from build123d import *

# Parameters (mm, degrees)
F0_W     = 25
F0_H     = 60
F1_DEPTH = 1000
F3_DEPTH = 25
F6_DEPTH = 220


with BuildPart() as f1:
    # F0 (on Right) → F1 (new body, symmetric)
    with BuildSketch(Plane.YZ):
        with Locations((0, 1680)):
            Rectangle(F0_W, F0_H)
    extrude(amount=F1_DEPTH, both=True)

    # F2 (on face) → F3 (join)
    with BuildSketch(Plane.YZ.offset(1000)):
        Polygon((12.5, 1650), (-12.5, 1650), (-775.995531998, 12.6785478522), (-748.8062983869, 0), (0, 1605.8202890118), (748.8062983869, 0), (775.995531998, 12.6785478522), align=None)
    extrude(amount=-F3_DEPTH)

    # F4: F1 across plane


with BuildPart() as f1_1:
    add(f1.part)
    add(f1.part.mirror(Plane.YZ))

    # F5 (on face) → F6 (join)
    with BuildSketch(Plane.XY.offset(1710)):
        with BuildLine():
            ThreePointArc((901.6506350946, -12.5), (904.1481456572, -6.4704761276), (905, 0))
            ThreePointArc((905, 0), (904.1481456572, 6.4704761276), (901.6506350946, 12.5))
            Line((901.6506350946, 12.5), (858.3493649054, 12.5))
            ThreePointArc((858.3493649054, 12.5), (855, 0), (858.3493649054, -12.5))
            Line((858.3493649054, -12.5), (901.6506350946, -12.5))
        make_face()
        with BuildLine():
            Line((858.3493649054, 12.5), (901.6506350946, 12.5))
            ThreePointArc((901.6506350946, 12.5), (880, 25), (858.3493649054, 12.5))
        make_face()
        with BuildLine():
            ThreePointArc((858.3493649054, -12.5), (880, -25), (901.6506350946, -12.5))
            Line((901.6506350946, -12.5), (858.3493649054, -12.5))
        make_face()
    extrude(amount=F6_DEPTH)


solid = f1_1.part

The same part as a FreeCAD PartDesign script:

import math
import FreeCAD as App
import Part
import Sketcher

V = App.Vector
Q = App.Units.Quantity

doc = App.newDocument("Part")
body = doc.addObject("PartDesign::Body", "Body")

# Sketch on YZ plane
sketch1 = body.newObject("Sketcher::SketchObject", "Sketch")
sketch1.AttachmentSupport = (doc.getObject("YZ_Plane"), [""])
sketch1.MapMode = "FlatFace"
sketch1.addGeometry([
    Part.LineSegment(V(-12, 1710, 0), V(-12, 1650, 0)),
    Part.LineSegment(V(-12, 1650, 0), V(12, 1650, 0)),
    Part.LineSegment(V(12, 1650, 0), V(12, 1710, 0)),
    Part.LineSegment(V(12, 1710, 0), V(-12, 1710, 0)),
], False)
sketch1.addConstraint([
    Sketcher.Constraint("Coincident", 0, 2, 1, 1),
    Sketcher.Constraint("Coincident", 1, 2, 2, 1),
    Sketcher.Constraint("Coincident", 2, 2, 3, 1),
    Sketcher.Constraint("Coincident", 3, 2, 0, 1),
    Sketcher.Constraint("Vertical", 0),
    Sketcher.Constraint("Horizontal", 1),
    Sketcher.Constraint("Vertical", 2),
    Sketcher.Constraint("Horizontal", 3),
    Sketcher.Constraint("DistanceX", 1, 1, 1, 2, Q("25 mm")),
    Sketcher.Constraint("DistanceY", 0, 2, 0, 1, Q("60 mm")),
    Sketcher.Constraint("DistanceY", -1, 1, 0, 2, Q("1650 mm")),
    Sketcher.Constraint("DistanceX", 0, 2, -1, 1, Q("12.5 mm")),
])
pad1 = body.newObject("PartDesign::Pad", "Pad")
pad1.Profile = sketch1
pad1.Length = 2000
pad1.Midplane = True

# Sketch on YZ plane
sketch2 = body.newObject("Sketcher::SketchObject", "Sketch001")
sketch2.AttachmentSupport = (doc.getObject("YZ_Plane"), [""])
sketch2.MapMode = "FlatFace"
sketch2.AttachmentOffset = App.Placement(V(0, 0, 1000), App.Rotation())
sketch2.addGeometry([
    Part.LineSegment(V(12, 1650, 0), V(-12, 1650, 0)),  # 0
    Part.LineSegment(V(-12, 1650, 0), V(-776, 13, 0)),  # 1
    Part.LineSegment(V(-776, 13, 0), V(-749, 0, 0)),  # 2
    Part.LineSegment(V(-749, 0, 0), V(0, 1606, 0)),  # 3
    Part.LineSegment(V(0, 1606, 0), V(749, 0, 0)),  # 4
    Part.LineSegment(V(749, 0, 0), V(776, 13, 0)),  # 5
    Part.LineSegment(V(776, 13, 0), V(12, 1650, 0)),  # 6
], False)
sketch2.addConstraint([
    Sketcher.Constraint("Coincident", 0, 2, 1, 1),
    Sketcher.Constraint("Coincident", 1, 2, 2, 1),
    Sketcher.Constraint("Coincident", 2, 2, 3, 1),
    Sketcher.Constraint("Coincident", 3, 2, 4, 1),
    Sketcher.Constraint("Coincident", 4, 2, 5, 1),
    Sketcher.Constraint("Coincident", 5, 2, 6, 1),
    Sketcher.Constraint("Coincident", 6, 2, 0, 1),
    Sketcher.Constraint("Horizontal", 0),
    Sketcher.Constraint("Symmetric", 2, 2, 4, 2, -1, 1),
    Sketcher.Constraint("Symmetric", 1, 2, 5, 2, -2),
    Sketcher.Constraint("PointOnObject", 2, 2, -1),
    Sketcher.Constraint("PointOnObject", 3, 2, -2),
    Sketcher.Constraint("Perpendicular", 1, 2),
    Sketcher.Constraint("Perpendicular", 2, 3),
    Sketcher.Constraint("Perpendicular", 5, 6),
    Sketcher.Constraint("DistanceX", 0, 2, 0, 1, Q("25 mm")),
    Sketcher.Constraint("Angle", 1, Q("-115 deg")),
    Sketcher.Constraint("Distance", 2, Q("30 mm")),
    Sketcher.Constraint("DistanceY", -1, 1, 0, 2, Q("1650 mm")),
])
pad2 = body.newObject("PartDesign::Pad", "Pad001")
pad2.Profile = sketch2
pad2.Length = 25
pad2.Reversed = True
body2 = doc.addObject("PartDesign::Body", "Body001")
doc.recompute()

body2.BaseFeature = body
doc.recompute()

mirroring = doc.addObject("Part::Mirroring", "Mirroring")
mirroring.Source = body
mirroring.Base = V(0, 0, 0)
mirroring.Normal = V(1, 0, 0)
body3 = doc.addObject("PartDesign::Body", "Body002")
body3.BaseFeature = mirroring
boolean = body2.newObject("PartDesign::Boolean", "Boolean")
boolean.Type = "Fuse"
boolean.addObjects([body3])
doc.recompute()

# Sketch on XY plane
sketch3 = body2.newObject("Sketcher::SketchObject", "Sketch002")
sketch3.AttachmentSupport = (doc.getObject("XY_Plane001"), [""])
sketch3.MapMode = "FlatFace"
sketch3.AttachmentOffset = App.Placement(V(0, 0, 1710), App.Rotation())
sketch3.addGeometry([
    Part.ArcOfCircle(Part.Circle(V(880, 0, 0), V(0, 0, 1), 25), math.radians(-30), math.radians(0)),  # 0
    Part.ArcOfCircle(Part.Circle(V(880, 0, 0), V(0, 0, 1), 25), math.radians(0), math.radians(30)),  # 1
    Part.ArcOfCircle(Part.Circle(V(880, 0, 0), V(0, 0, 1), 25), math.radians(30), math.radians(150)),  # 2
    Part.ArcOfCircle(Part.Circle(V(880, 0, 0), V(0, 0, 1), 25), math.radians(150), math.radians(210)),  # 3
    Part.ArcOfCircle(Part.Circle(V(880, 0, 0), V(0, 0, 1), 25), math.radians(-150), math.radians(-30)),  # 4
], False)
sketch3.addConstraint([
    Sketcher.Constraint("Tangent", 0, 2, 1, 1),
    Sketcher.Constraint("Tangent", 1, 2, 2, 1),
    Sketcher.Constraint("Tangent", 2, 2, 3, 1),
    Sketcher.Constraint("Tangent", 3, 2, 4, 1),
    Sketcher.Constraint("Tangent", 4, 2, 0, 1),
    Sketcher.Constraint("Coincident", 2, 3, 0, 3),
    Sketcher.Constraint("Symmetric", 2, 2, 3, 2, -1),
    Sketcher.Constraint("PointOnObject", 0, 2, -1),
    Sketcher.Constraint("Horizontal", 1, 2, 2, 2),
    Sketcher.Constraint("Horizontal", 3, 2, 4, 2),
    Sketcher.Constraint("Radius", 0, Q("25 mm")),
    Sketcher.Constraint("DistanceX", -1, 1, 0, 3, Q("880 mm")),
    Sketcher.Constraint("DistanceY", 3, 2, 2, 2, Q("25 mm")),
])
pad3 = body2.newObject("PartDesign::Pad", "Pad002")
pad3.Profile = sketch3
pad3.Length = 220
mirroring.Visibility = False

doc.recompute()
